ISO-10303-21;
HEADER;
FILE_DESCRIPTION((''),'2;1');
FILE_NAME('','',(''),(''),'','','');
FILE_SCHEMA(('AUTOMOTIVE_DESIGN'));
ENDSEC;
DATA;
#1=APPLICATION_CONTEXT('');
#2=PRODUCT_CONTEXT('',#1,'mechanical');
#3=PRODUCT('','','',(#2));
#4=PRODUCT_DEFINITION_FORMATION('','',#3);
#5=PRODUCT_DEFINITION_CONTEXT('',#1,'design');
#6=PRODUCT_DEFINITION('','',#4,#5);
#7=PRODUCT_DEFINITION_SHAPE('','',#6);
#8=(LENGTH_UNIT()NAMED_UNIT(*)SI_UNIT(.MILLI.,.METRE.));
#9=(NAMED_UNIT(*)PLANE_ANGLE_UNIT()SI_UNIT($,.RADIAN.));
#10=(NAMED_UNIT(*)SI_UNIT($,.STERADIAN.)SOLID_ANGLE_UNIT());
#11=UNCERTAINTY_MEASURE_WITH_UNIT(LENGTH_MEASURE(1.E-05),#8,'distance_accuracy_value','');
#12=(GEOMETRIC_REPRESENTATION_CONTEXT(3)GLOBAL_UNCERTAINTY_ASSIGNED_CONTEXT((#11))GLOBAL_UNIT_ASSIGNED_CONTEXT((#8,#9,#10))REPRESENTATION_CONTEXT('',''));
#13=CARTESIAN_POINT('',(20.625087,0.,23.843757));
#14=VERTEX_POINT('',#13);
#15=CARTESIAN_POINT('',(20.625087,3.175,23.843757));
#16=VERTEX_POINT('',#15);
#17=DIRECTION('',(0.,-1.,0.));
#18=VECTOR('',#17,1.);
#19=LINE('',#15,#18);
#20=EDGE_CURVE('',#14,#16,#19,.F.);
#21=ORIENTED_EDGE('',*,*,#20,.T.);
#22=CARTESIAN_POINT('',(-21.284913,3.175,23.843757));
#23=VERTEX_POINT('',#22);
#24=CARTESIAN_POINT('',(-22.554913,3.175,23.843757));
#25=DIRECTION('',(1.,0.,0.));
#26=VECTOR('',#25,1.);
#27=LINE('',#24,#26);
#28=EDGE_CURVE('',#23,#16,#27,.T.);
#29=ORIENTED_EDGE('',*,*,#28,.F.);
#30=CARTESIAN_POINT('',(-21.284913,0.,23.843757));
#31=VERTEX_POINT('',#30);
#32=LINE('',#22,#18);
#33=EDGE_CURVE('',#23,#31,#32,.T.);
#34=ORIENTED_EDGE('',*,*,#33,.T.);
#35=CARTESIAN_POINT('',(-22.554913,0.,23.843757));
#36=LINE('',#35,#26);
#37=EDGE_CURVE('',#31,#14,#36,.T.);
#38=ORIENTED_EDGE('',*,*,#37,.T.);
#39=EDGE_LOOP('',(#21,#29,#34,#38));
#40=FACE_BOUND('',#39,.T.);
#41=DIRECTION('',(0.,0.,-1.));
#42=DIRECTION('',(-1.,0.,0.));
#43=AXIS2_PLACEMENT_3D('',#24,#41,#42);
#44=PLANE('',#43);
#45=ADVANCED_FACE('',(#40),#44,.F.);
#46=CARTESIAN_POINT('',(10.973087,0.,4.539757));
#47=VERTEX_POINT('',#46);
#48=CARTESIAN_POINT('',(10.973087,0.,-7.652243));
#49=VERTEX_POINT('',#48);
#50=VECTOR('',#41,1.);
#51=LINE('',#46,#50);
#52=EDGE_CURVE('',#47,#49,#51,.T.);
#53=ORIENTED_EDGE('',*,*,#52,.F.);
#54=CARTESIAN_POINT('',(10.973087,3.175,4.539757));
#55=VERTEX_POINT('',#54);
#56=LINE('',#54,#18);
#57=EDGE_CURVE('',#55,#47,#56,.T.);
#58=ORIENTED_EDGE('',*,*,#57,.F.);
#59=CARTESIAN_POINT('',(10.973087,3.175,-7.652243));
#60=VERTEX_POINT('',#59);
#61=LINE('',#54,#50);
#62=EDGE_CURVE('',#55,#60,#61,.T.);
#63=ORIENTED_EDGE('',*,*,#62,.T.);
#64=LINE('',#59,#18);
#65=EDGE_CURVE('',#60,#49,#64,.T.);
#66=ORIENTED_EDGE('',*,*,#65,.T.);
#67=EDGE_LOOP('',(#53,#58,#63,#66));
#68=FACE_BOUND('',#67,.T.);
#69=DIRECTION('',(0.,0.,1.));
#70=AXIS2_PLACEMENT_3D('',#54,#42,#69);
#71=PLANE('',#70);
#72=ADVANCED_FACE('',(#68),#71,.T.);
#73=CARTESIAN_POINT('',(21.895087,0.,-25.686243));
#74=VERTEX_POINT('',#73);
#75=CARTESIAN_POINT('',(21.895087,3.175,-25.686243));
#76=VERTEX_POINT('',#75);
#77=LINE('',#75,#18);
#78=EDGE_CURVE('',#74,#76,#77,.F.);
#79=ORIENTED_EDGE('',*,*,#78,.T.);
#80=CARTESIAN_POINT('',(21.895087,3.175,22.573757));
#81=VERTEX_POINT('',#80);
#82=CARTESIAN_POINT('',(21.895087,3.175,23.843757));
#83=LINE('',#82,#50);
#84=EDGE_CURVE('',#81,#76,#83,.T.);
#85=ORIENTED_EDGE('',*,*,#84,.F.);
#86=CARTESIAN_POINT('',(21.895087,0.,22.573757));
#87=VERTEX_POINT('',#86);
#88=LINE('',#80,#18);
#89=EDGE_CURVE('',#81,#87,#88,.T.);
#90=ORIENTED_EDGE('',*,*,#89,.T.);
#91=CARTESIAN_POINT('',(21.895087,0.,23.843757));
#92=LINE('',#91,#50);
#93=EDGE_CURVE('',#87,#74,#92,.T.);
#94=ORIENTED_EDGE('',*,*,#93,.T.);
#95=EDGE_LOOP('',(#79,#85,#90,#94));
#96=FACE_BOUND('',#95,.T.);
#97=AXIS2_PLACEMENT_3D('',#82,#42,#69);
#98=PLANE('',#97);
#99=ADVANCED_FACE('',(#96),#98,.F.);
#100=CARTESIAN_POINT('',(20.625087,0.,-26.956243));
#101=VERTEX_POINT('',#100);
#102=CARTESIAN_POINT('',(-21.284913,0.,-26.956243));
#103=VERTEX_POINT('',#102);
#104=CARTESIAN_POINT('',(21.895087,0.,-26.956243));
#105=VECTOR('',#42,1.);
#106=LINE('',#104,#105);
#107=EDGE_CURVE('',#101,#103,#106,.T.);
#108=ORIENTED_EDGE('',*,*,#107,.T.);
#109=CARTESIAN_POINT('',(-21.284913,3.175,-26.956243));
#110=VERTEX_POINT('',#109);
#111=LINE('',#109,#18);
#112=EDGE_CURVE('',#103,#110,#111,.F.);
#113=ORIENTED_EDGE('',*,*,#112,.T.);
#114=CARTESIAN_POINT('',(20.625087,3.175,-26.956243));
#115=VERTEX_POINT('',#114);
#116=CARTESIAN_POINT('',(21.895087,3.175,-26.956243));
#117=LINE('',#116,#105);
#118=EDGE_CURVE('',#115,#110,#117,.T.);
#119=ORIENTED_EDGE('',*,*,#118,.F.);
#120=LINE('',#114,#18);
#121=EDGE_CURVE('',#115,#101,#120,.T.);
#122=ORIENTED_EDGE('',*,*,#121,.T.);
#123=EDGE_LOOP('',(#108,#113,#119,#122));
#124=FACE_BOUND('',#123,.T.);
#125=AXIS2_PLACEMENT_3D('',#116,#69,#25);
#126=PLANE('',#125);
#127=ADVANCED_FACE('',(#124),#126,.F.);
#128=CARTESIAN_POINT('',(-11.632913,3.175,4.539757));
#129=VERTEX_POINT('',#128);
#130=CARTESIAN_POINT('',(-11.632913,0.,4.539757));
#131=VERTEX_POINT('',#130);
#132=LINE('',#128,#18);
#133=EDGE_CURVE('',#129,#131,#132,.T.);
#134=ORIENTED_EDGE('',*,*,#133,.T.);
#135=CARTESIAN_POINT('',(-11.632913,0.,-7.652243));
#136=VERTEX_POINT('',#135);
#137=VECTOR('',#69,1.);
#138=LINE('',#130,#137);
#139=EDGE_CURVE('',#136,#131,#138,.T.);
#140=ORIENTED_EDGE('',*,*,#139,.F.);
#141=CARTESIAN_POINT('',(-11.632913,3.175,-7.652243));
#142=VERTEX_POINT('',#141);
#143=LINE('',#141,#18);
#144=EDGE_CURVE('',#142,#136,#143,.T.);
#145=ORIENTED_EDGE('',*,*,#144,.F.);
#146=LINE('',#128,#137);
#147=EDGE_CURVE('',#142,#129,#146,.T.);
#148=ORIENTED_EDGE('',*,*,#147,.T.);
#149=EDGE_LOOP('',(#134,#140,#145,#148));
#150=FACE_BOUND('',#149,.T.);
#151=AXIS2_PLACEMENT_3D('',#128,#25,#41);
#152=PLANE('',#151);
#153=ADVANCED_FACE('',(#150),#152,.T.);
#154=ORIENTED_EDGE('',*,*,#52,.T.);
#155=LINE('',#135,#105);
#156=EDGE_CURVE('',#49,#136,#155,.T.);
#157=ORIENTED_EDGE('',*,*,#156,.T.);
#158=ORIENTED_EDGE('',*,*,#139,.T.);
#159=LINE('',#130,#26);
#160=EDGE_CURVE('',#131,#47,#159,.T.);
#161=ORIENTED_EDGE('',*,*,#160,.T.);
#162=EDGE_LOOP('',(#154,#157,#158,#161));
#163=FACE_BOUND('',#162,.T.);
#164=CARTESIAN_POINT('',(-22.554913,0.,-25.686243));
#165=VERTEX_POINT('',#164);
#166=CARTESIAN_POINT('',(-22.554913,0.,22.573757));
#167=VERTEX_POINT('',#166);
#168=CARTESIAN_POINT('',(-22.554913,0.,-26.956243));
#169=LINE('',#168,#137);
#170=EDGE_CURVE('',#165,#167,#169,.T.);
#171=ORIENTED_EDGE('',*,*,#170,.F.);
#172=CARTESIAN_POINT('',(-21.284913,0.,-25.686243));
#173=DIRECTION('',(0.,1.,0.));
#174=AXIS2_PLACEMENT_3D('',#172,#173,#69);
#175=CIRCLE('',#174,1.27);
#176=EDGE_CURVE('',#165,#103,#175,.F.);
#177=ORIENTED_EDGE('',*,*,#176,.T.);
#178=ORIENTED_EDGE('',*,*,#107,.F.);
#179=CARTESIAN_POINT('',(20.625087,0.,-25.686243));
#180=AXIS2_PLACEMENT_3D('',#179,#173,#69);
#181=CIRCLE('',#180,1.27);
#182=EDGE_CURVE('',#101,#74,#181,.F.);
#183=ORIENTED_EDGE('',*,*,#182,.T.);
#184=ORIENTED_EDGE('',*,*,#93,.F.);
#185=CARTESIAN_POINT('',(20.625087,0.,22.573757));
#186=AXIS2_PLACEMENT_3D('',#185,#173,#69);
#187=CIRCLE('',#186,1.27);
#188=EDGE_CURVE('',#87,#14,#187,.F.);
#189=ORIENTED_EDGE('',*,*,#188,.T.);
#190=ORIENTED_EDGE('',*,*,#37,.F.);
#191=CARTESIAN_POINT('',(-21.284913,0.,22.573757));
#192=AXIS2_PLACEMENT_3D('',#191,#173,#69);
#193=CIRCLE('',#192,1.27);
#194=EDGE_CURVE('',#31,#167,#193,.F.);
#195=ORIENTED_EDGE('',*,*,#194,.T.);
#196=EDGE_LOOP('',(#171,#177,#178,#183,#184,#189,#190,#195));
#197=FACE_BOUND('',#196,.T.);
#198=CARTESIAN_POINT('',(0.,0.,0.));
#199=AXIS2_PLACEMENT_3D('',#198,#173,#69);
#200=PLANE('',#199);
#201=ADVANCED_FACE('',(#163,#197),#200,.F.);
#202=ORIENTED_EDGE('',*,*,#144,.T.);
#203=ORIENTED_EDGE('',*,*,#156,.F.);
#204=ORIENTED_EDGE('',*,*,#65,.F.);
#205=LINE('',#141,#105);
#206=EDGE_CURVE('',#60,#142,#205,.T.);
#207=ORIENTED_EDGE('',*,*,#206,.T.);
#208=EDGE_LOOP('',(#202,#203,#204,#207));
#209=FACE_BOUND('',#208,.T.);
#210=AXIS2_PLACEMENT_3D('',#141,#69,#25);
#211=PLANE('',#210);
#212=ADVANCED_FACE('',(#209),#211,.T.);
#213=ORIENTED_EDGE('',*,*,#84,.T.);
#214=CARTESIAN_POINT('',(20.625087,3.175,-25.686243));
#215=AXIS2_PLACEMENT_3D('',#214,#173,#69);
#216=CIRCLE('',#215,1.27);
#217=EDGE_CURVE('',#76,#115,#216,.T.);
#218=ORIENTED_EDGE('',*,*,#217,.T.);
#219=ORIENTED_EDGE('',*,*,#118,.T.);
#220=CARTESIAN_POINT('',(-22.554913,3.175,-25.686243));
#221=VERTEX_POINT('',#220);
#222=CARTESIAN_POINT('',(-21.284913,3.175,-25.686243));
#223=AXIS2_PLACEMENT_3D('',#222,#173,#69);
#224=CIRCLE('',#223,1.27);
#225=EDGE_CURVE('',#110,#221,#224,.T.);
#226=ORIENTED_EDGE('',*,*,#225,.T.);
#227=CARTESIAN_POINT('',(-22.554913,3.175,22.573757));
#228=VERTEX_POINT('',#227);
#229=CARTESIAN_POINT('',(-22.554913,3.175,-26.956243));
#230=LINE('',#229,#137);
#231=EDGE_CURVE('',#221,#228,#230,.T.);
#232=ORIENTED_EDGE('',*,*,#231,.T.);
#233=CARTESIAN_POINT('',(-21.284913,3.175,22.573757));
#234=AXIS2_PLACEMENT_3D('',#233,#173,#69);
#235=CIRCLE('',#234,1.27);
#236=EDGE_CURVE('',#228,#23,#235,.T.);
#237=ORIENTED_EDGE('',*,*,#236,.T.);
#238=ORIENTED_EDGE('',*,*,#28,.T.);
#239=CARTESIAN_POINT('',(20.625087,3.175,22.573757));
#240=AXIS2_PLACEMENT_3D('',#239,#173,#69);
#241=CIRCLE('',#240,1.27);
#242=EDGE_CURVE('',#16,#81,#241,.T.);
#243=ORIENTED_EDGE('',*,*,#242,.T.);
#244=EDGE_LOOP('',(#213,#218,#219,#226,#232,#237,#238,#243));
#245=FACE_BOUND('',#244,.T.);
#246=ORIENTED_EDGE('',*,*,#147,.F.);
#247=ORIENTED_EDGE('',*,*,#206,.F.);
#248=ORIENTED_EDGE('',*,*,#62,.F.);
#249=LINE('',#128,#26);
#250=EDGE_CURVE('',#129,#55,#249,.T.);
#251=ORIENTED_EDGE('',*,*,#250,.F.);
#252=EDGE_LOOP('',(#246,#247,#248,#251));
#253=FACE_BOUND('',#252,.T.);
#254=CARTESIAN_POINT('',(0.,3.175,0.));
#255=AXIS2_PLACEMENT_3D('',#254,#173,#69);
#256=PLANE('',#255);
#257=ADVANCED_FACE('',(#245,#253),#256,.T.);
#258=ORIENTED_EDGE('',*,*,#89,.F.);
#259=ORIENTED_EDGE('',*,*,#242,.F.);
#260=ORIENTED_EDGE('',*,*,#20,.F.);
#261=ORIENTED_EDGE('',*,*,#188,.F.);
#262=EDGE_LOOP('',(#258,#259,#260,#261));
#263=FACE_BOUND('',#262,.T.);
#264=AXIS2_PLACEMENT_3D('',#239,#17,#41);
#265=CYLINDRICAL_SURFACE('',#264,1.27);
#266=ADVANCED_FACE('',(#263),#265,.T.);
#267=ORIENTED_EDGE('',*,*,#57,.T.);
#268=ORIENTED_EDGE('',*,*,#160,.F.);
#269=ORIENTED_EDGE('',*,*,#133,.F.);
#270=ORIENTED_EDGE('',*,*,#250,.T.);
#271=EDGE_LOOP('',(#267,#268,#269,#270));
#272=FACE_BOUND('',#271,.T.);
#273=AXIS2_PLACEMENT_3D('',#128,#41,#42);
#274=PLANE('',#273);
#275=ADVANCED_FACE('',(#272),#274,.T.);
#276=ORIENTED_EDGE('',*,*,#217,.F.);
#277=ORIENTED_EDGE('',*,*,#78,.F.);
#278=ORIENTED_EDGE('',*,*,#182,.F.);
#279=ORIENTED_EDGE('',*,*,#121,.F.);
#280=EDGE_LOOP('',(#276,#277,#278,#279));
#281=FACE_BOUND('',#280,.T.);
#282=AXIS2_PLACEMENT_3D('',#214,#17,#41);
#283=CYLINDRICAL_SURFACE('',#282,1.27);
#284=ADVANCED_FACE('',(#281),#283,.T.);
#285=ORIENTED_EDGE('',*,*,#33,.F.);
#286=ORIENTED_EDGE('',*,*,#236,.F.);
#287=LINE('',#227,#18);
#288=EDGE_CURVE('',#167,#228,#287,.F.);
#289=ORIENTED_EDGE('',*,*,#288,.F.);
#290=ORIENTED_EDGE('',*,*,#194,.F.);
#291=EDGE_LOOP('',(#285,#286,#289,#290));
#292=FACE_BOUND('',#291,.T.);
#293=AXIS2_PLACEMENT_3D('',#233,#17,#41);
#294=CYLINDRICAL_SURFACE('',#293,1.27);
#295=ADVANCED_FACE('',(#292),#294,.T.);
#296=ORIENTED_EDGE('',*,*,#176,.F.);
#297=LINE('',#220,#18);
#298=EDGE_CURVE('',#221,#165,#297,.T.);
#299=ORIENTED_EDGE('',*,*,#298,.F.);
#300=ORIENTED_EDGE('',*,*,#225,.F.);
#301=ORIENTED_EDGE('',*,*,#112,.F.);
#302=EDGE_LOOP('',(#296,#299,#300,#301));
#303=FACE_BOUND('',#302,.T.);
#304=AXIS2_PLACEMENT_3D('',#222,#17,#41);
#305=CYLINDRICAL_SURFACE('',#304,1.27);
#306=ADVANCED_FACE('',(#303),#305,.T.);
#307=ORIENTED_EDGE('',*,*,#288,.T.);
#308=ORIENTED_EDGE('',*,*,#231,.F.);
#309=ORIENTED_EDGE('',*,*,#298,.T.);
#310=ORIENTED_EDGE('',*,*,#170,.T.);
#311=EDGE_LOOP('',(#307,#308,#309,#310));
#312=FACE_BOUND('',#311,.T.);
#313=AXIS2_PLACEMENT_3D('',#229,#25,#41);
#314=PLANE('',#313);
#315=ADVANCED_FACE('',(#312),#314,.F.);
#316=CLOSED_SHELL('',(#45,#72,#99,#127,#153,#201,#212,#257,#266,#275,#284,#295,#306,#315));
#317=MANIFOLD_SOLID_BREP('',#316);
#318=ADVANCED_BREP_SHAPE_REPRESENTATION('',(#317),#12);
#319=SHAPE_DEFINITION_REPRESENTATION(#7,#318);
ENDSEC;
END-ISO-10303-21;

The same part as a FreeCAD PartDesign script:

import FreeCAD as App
import Part
import Sketcher

V = App.Vector
Q = App.Units.Quantity


def edges_at(feature, points):
    """Names of the edges that pass closest to the given points."""
    edges = feature.Shape.Edges
    near = lambda p: min(range(len(edges)), key=lambda i: edges[i].distToShape(Part.Vertex(*p))[0])
    return sorted({f"Edge{near(p) + 1}" for p in points})

doc = App.newDocument("Part")
params = doc.addObject("Spreadsheet::Sheet", "Params")
for row, (alias, value) in enumerate([
    ("sketch1_height", "2 in"),
    ("sketch1_width", "1.75 in"),
    ("sketch1_width2", "0.89 in"),
    ("sketch1_height2", "0.48 in"),
    ("pad1_length", "0.125 in"),
    ("fillet_radius", "0.05 in"),
], start=1):
    params.set(f"A{row}", alias)
    params.set(f"B{row}", "=" + value)
    params.setAlias(f"B{row}", alias)

body = doc.addObject("PartDesign::Body", "Body")

sketch1 = body.newObject("Sketcher::SketchObject", "Sketch")
sketch1.AttachmentSupport = (doc.getObject("XZ_Plane"), [""])
sketch1.MapMode = "FlatFace"
sketch1.addGeometry(Part.LineSegment(V(-22.554913, -26.956243, 0), V(-22.554913, 23.843757, 0)), False)
sketch1.addGeometry(Part.LineSegment(V(-22.554913, 23.843757, 0), V(21.895087, 23.843757, 0)), False)
sketch1.addGeometry(Part.LineSegment(V(21.895087, 23.843757, 0), V(21.895087, -26.956243, 0)), False)
sketch1.addGeometry(Part.LineSegment(V(21.895087, -26.956243, 0), V(-22.554913, -26.956243, 0)), False)
sketch1.addGeometry(Part.LineSegment(V(10.973087, 4.539757, 0), V(-11.632913, 4.539757, 0)), False)
sketch1.addGeometry(Part.LineSegment(V(-11.632913, 4.539757, 0), V(-11.632913, -7.652243, 0)), False)
sketch1.addGeometry(Part.LineSegment(V(-11.632913, -7.652243, 0), V(10.973087, -7.652243, 0)), False)
sketch1.addGeometry(Part.LineSegment(V(10.973087, -7.652243, 0), V(10.973087, 4.539757, 0)), False)
sketch1.addConstraint(Sketcher.Constraint("Coincident", 0, 2, 1, 1))
sketch1.addConstraint(Sketcher.Constraint("Coincident", 1, 2, 2, 1))
sketch1.addConstraint(Sketcher.Constraint("Coincident", 2, 2, 3, 1))
sketch1.addConstraint(Sketcher.Constraint("Coincident", 3, 2, 0, 1))
sketch1.addConstraint(Sketcher.Constraint("Coincident", 4, 2, 5, 1))
sketch1.addConstraint(Sketcher.Constraint("Coincident", 5, 2, 6, 1))
sketch1.addConstraint(Sketcher.Constraint("Coincident", 6, 2, 7, 1))
sketch1.addConstraint(Sketcher.Constraint("Coincident", 7, 2, 4, 1))
sketch1.addConstraint(Sketcher.Constraint("Vertical", 0))
sketch1.addConstraint(Sketcher.Constraint("Horizontal", 1))
sketch1.addConstraint(Sketcher.Constraint("Vertical", 2))
sketch1.addConstraint(Sketcher.Constraint("Horizontal", 3))
sketch1.addConstraint(Sketcher.Constraint("Horizontal", 4))
sketch1.addConstraint(Sketcher.Constraint("Vertical", 5))
sketch1.addConstraint(Sketcher.Constraint("Horizontal", 6))
sketch1.addConstraint(Sketcher.Constraint("Vertical", 7))
sketch1.addConstraint(Sketcher.Constraint("DistanceY", 0, 1, 0, 2, Q("2 in")))
sketch1.addConstraint(Sketcher.Constraint("DistanceX", 1, 1, 1, 2, Q("1.75 in")))
sketch1.addConstraint(Sketcher.Constraint("DistanceX", 4, 2, 4, 1, Q("0.89 in")))
sketch1.addConstraint(Sketcher.Constraint("DistanceY", 5, 2, 5, 1, Q("0.48 in")))
sketch1.addConstraint(Sketcher.Constraint("DistanceX", 0, 2, 4, 2, Q("0.43 in")))
sketch1.addConstraint(Sketcher.Constraint("DistanceY", 4, 2, 0, 2, Q("0.76 in")))
sketch1.addConstraint(Sketcher.Constraint("DistanceX", 0, 2, -1, 1, Q("22.554913 mm")))
sketch1.addConstraint(Sketcher.Constraint("DistanceY", -1, 1, 0, 2, Q("23.843757 mm")))
sketch1.setExpression("Constraints[16]", "Params.sketch1_height")
sketch1.setExpression("Constraints[17]", "Params.sketch1_width")
sketch1.setExpression("Constraints[18]", "Params.sketch1_width2")
sketch1.setExpression("Constraints[19]", "Params.sketch1_height2")
pad1 = body.newObject("PartDesign::Pad", "Pad")
pad1.Profile = sketch1
pad1.setExpression("Length", "Params.pad1_length")
pad1.Reversed = True
doc.recompute()

fillet = body.newObject("PartDesign::Fillet", "Fillet")
fillet.Base = (pad1, edges_at(pad1, [
    (-22.555, 1.587, 23.844),
    (-22.555, 1.587, -26.956),
    (21.895, 1.587, -26.956),
    (21.895, 1.587, 23.844),
]))
fillet.setExpression("Radius", "Params.fillet_radius")

doc.recompute()
